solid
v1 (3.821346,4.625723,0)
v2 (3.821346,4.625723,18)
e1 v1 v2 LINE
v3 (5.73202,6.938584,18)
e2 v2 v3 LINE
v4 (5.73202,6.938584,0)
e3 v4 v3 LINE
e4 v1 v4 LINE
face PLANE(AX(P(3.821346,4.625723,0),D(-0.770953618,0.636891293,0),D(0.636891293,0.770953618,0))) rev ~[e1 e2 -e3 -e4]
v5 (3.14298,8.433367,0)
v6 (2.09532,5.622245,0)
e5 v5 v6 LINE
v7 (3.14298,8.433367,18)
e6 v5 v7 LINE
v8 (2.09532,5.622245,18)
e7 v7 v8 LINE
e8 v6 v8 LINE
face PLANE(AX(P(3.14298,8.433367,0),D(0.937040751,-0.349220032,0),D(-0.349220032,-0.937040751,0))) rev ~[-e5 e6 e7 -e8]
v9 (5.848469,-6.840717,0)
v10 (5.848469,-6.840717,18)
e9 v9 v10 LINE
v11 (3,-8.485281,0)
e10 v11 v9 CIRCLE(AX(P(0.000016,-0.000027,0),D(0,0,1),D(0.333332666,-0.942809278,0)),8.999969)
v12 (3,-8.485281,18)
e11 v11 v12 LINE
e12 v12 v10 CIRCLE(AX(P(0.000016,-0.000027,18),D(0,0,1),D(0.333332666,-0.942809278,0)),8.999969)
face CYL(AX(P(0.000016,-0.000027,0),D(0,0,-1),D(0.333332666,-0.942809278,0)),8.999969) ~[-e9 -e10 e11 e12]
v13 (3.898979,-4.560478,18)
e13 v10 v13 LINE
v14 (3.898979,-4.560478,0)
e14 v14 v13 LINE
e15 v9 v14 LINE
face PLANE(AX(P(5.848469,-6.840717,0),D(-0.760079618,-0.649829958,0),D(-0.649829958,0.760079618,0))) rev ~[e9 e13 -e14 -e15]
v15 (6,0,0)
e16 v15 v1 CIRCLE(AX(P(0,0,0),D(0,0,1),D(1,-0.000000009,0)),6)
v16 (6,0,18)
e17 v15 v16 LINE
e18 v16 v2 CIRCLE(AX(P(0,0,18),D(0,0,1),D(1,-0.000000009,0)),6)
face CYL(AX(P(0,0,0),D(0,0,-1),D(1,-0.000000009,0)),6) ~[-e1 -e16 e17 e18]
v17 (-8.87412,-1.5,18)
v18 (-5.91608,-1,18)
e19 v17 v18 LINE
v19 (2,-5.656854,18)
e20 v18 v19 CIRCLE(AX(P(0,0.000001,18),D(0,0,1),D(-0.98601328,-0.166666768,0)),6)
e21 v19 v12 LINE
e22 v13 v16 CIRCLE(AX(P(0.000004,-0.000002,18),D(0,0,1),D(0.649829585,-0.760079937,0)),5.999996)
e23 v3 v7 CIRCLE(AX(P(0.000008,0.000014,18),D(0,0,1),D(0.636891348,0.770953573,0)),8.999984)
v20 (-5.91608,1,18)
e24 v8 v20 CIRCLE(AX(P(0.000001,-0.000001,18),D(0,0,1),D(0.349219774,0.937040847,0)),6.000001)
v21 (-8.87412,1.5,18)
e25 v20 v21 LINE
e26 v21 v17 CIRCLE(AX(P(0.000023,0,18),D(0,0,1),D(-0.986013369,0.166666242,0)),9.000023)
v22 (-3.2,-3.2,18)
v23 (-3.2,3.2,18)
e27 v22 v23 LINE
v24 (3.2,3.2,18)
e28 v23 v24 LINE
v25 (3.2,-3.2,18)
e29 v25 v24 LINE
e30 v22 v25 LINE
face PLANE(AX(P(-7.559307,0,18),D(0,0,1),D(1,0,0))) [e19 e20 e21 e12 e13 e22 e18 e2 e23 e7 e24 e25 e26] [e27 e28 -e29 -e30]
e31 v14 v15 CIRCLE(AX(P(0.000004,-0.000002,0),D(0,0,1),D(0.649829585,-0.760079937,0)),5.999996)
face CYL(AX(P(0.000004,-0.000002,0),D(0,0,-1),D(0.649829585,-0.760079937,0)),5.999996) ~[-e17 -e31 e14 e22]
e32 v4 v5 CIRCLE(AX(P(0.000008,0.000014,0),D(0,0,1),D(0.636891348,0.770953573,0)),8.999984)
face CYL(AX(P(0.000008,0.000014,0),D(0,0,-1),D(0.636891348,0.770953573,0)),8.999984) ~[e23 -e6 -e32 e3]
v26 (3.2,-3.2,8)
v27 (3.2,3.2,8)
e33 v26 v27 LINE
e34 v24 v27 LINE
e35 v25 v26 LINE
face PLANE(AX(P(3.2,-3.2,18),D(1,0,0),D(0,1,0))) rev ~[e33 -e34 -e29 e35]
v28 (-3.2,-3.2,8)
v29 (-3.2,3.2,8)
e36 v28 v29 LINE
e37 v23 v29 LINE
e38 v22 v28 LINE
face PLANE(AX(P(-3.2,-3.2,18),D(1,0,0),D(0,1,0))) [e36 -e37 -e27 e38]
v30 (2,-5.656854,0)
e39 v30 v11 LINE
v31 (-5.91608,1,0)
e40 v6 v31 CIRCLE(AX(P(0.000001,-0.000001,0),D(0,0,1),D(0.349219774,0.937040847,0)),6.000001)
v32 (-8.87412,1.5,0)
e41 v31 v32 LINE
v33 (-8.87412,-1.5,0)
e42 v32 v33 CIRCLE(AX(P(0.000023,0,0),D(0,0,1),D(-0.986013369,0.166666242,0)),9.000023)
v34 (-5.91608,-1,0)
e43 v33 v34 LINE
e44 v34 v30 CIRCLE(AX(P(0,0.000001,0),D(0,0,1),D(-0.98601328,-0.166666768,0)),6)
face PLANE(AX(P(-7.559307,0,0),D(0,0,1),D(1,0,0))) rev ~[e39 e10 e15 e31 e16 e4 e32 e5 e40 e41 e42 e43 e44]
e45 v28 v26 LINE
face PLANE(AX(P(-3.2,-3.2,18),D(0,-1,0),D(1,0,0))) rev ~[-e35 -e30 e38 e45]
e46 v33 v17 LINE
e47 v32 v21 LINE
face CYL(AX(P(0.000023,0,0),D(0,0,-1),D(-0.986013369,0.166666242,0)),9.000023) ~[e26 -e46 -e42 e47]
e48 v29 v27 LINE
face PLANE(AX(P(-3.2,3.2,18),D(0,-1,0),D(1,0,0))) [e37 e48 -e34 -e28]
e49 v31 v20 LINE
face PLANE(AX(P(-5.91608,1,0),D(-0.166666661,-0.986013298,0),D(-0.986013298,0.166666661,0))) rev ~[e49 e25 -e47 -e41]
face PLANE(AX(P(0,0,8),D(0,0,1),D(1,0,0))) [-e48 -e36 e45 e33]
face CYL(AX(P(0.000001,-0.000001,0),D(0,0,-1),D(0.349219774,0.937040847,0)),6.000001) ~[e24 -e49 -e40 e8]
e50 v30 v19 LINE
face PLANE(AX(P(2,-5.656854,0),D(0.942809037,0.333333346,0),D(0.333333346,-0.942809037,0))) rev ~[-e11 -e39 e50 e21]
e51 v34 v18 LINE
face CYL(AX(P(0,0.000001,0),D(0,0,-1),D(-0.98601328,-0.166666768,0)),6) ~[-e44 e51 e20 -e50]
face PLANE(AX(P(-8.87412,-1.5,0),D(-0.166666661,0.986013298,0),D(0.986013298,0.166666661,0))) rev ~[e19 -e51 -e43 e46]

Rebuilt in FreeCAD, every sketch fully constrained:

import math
import FreeCAD as App
import Part
import Sketcher
from FreeCAD import Vector


def add_polygon(sketch, points):
    """Adds a closed chain of lines whose ends are joined by coincident constraints."""
    first, n = sketch.GeometryCount, len(points)
    for a, b in zip(points, points[1:] + points[:1]):
        sketch.addGeometry(Part.LineSegment(App.Vector(*a, 0), App.Vector(*b, 0)), False)
    for i in range(n):
        sketch.addConstraint(Sketcher.Constraint("Coincident", first + i, 2, first + (i + 1) % n, 1))

doc = App.newDocument("Part")
params = doc.addObject("Spreadsheet::Sheet", "Params")
for row, (alias, value) in enumerate([
    ("sketch1_radius", "6 mm"),
    ("sketch1_length", "3 mm"),
    ("pad1_length", "18 mm"),
    ("sketch2_width", "6.4 mm"),
    ("pocket1_length", "10 mm"),
], start=1):
    params.set(f"A{row}", alias)
    params.set(f"B{row}", "=" + value)
    params.setAlias(f"B{row}", alias)

body = doc.addObject("PartDesign::Body", "Body")

# Sketch on XY plane
sketch1 = body.newObject("Sketcher::SketchObject", "Sketch")
sketch1.AttachmentSupport = (doc.getObject("XY_Plane"), [""])
sketch1.MapMode = "FlatFace"
sketch1.addGeometry(Part.LineSegment(Vector(-5.9, 1, 0), Vector(-8.9, 1.5, 0)), False)
sketch1.addGeometry(Part.ArcOfCircle(Part.Circle(Vector(0, 0, 0), Vector(0, 0, 1), 9), math.radians(170.41), math.radians(189.59)), False)
sketch1.addGeometry(Part.LineSegment(Vector(-8.9, -1.5, 0), Vector(-5.9, -1, 0)), False)
sketch1.addGeometry(Part.ArcOfCircle(Part.Circle(Vector(0, 0, 0), Vector(0, 0, 1), 6), math.radians(-170), math.radians(-71)), False)
sketch1.addGeometry(Part.LineSegment(Vector(2, -5.7, 0), Vector(3, -8.5, 0)), False)
sketch1.addGeometry(Part.ArcOfCircle(Part.Circle(Vector(0, 0, 0), Vector(0, 0, 1), 9), math.radians(-71), math.radians(-49)), False)
sketch1.addGeometry(Part.LineSegment(Vector(5.8, -6.8, 0), Vector(3.9, -4.6, 0)), False)
sketch1.addGeometry(Part.ArcOfCircle(Part.Circle(Vector(0, 0, 0), Vector(0, 0, 1), 6), math.radians(-49), math.radians(0)), False)
sketch1.addGeometry(Part.ArcOfCircle(Part.Circle(Vector(0, 0, 0), Vector(0, 0, 1), 6), math.radians(0), math.radians(50)), False)
sketch1.addGeometry(Part.LineSegment(Vector(3.8, 4.6, 0), Vector(5.7, 6.9, 0)), False)
sketch1.addGeometry(Part.ArcOfCircle(Part.Circle(Vector(0, 0, 0), Vector(0, 0, 1), 9), math.radians(50.44), math.radians(69.56)), False)
sketch1.addGeometry(Part.LineSegment(Vector(3.1, 8.4, 0), Vector(2.1, 5.6, 0)), False)
sketch1.addGeometry(Part.ArcOfCircle(Part.Circle(Vector(0, 0, 0), Vector(0, 0, 1), 6), math.radians(70), math.radians(170)), False)
sketch1.addConstraint(Sketcher.Constraint("Coincident", 0, 2, 1, 1))
sketch1.addConstraint(Sketcher.Constraint("Coincident", 1, 2, 2, 1))
sketch1.addConstraint(Sketcher.Constraint("Coincident", 2, 2, 3, 1))
sketch1.addConstraint(Sketcher.Constraint("Coincident", 3, 2, 4, 1))
sketch1.addConstraint(Sketcher.Constraint("Coincident", 4, 2, 5, 1))
sketch1.addConstraint(Sketcher.Constraint("Coincident", 5, 2, 6, 1))
sketch1.addConstraint(Sketcher.Constraint("Coincident", 6, 2, 7, 1))
sketch1.addConstraint(Sketcher.Constraint("Tangent", 7, 2, 8, 1))
sketch1.addConstraint(Sketcher.Constraint("Coincident", 8, 2, 9, 1))
sketch1.addConstraint(Sketcher.Constraint("Coincident", 9, 2, 10, 1))
sketch1.addConstraint(Sketcher.Constraint("Coincident", 10, 2, 11, 1))
sketch1.addConstraint(Sketcher.Constraint("Coincident", 11, 2, 12, 1))
sketch1.addConstraint(Sketcher.Constraint("Coincident", 12, 2, 0, 1))
sketch1.addConstraint(Sketcher.Constraint("Coincident", 3, 3, -1, 1))
sketch1.addConstraint(Sketcher.Constraint("Coincident", 7, 3, -1, 1))
sketch1.addConstraint(Sketcher.Constraint("Coincident", 12, 3, -1, 1))
sketch1.addConstraint(Sketcher.Constraint("Equal", 3, 8))
sketch1.addConstraint(Sketcher.Constraint("Equal", 8, 12))
sketch1.addConstraint(Sketcher.Constraint("Symmetric", 0, 2, 1, 2, -1))
sketch1.addConstraint(Sketcher.Constraint("PointOnObject", 7, 2, -1))
sketch1.addConstraint(Sketcher.Constraint("Vertical", 2, 2, 12, 2))
sketch1.addConstraint(Sketcher.Constraint("Equal", 2, 4))
sketch1.addConstraint(Sketcher.Constraint("Equal", 4, 6))
sketch1.addConstraint(Sketcher.Constraint("Equal", 6, 9))
sketch1.addConstraint(Sketcher.Constraint("Equal", 9, 11))
sketch1.addConstraint(Sketcher.Constraint("Radius", 3, 6.0))
sketch1.addConstraint(Sketcher.Constraint("Distance", 0, 3.0))
sketch1.addConstraint(Sketcher.Constraint("DistanceY", 2, 2, -1, 1, 1.0))
sketch1.addConstraint(Sketcher.Constraint("DistanceX", -1, 1, 3, 2, 2.0))
sketch1.addConstraint(Sketcher.Constraint("DistanceX", -1, 1, 4, 2, 3.0))
sketch1.addConstraint(Sketcher.Constraint("DistanceX", -1, 1, 7, 2, 6.0))
sketch1.addConstraint(Sketcher.Constraint("DistanceY", 1, 2, 0, 2, 3.0))
sketch1.addConstraint(Sketcher.Constraint("Radius", 5, 8.999969))
sketch1.addConstraint(Sketcher.Constraint("Radius", 1, 9.000023))
sketch1.addConstraint(Sketcher.Constraint("Radius", 10, 8.999984))
sketch1.addConstraint(Sketcher.Constraint("DistanceX", 11, 2, 9, 2, 3.6367))
sketch1.addConstraint(Sketcher.Constraint("DistanceX", -1, 1, 5, 2, 5.848469))
sketch1.addConstraint(Sketcher.Constraint("DistanceX", -1, 1, 6, 2, 3.898979))
sketch1.addConstraint(Sketcher.Constraint("DistanceX", -1, 1, 9, 2, 5.73202))
sketch1.addConstraint(Sketcher.Constraint("DistanceX", -1, 1, 10, 2, 3.14298))
sketch1.addConstraint(Sketcher.Constraint("DistanceX", 10, 3, 8, 2, 3.821338))
sketch1.setExpression("Constraints[25]", "Params.sketch1_radius")
sketch1.setExpression("Constraints[26]", "Params.sketch1_length")
pad1 = body.newObject("PartDesign::Pad", "Pad")
pad1.Profile = sketch1
pad1.setExpression("Length", "Params.pad1_length")

# Sketch on XY plane
sketch2 = body.newObject("Sketcher::SketchObject", "Sketch001")
sketch2.AttachmentSupport = (doc.getObject("XY_Plane"), [""])
sketch2.MapMode = "FlatFace"
sketch2.AttachmentOffset = App.Placement(Vector(0, 0, 18), App.Rotation())
add_polygon(sketch2, [(-3, 3), (-3, -3), (3, -3), (3, 3)])  # lines 0-3
sketch2.addConstraint(Sketcher.Constraint("Vertical", 0))
sketch2.addConstraint(Sketcher.Constraint("Horizontal", 1))
sketch2.addConstraint(Sketcher.Constraint("Vertical", 2))
sketch2.addConstraint(Sketcher.Constraint("Horizontal", 3))
sketch2.addConstraint(Sketcher.Constraint("Symmetric", 0, 2, 2, 2, -1, 1))
sketch2.addConstraint(Sketcher.Constraint("Equal", 3, 0))
sketch2.addConstraint(Sketcher.Constraint("DistanceX", 1, 1, 1, 2, 6.4))
sketch2.setExpression("Constraints[10]", "Params.sketch2_width")
pocket1 = body.newObject("PartDesign::Pocket", "Pocket")
pocket1.Profile = sketch2
pocket1.setExpression("Length", "Params.pocket1_length")

doc.recompute()
